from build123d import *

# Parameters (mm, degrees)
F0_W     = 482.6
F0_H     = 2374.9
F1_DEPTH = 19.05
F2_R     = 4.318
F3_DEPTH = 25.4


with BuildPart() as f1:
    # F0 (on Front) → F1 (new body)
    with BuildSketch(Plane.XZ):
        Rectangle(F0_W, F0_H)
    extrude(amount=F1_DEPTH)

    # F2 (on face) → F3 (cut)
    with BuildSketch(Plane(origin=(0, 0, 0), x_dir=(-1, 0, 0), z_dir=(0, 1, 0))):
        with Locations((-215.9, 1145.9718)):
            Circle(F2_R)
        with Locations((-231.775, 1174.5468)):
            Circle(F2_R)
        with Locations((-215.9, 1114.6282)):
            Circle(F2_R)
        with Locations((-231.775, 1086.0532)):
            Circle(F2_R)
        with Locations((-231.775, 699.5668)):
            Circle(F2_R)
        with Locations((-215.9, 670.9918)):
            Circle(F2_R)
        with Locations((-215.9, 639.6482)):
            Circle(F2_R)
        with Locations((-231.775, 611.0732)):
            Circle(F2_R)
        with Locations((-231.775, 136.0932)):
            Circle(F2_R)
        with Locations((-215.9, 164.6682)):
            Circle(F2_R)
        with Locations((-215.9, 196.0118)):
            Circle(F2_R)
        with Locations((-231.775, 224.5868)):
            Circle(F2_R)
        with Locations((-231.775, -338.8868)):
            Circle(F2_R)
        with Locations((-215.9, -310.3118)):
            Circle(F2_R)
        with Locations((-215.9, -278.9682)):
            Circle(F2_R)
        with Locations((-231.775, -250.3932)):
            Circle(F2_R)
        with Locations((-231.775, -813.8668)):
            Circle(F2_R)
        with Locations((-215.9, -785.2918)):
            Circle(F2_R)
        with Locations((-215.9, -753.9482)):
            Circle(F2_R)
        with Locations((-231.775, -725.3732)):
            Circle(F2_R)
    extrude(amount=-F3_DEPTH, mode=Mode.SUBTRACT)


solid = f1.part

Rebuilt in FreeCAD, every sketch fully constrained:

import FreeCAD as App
import Part
import Sketcher

V = App.Vector
Q = App.Units.Quantity


def add_polygon(sketch, points):
    """Adds a closed chain of lines whose ends are joined by coincident constraints."""
    first, n = sketch.GeometryCount, len(points)
    for a, b in zip(points, points[1:] + points[:1]):
        sketch.addGeometry(Part.LineSegment(App.Vector(*a, 0), App.Vector(*b, 0)), False)
    for i in range(n):
        sketch.addConstraint(Sketcher.Constraint("Coincident", first + i, 2, first + (i + 1) % n, 1))

doc = App.newDocument("Part")
body = doc.addObject("PartDesign::Body", "Body")

sketch1 = body.newObject("Sketcher::SketchObject", "Sketch")
sketch1.AttachmentSupport = (doc.getObject("XZ_Plane"), [""])
sketch1.MapMode = "FlatFace"
add_polygon(sketch1, [(-241.3, 1187.45), (-241.3, -1187.45), (241.3, -1187.45), (241.3, 1187.45)])
sketch1.addConstraint(Sketcher.Constraint("Vertical", 0))
sketch1.addConstraint(Sketcher.Constraint("Horizontal", 1))
sketch1.addConstraint(Sketcher.Constraint("Vertical", 2))
sketch1.addConstraint(Sketcher.Constraint("Horizontal", 3))
sketch1.addConstraint(Sketcher.Constraint("Symmetric", 0, 2, 2, 2, -1, 1))
sketch1.addConstraint(Sketcher.Constraint("DistanceX", 1, 1, 1, 2, Q("19 in")))
sketch1.addConstraint(Sketcher.Constraint("DistanceY", 0, 2, 0, 1, Q("93.5 in")))
pad1 = body.newObject("PartDesign::Pad", "Pad")
pad1.Profile = sketch1
pad1.Length = Q("0.75 in")

sketch2 = body.newObject("Sketcher::SketchObject", "Sketch001")
sketch2.AttachmentSupport = (doc.getObject("XZ_Plane"), [""])
sketch2.MapMode = "FlatFace"
sketch2.addGeometry(Part.Circle(V(215.9, 1145.9718, 0), V(0, 0, 1), 4.318), False)
sketch2.addGeometry(Part.Circle(V(231.775, 1174.5468, 0), V(0, 0, 1), 4.318), False)
sketch2.addGeometry(Part.Circle(V(215.9, 1114.6282, 0), V(0, 0, 1), 4.318), False)
sketch2.addGeometry(Part.Circle(V(231.775, 1086.0532, 0), V(0, 0, 1), 4.318), False)
sketch2.addGeometry(Part.Circle(V(231.775, 699.5668, 0), V(0, 0, 1), 4.318), False)
sketch2.addGeometry(Part.Circle(V(215.9, 670.9918, 0), V(0, 0, 1), 4.318), False)
sketch2.addGeometry(Part.Circle(V(215.9, 639.6482, 0), V(0, 0, 1), 4.318), False)
sketch2.addGeometry(Part.Circle(V(231.775, 611.0732, 0), V(0, 0, 1), 4.318), False)
sketch2.addGeometry(Part.Circle(V(231.775, 136.0932, 0), V(0, 0, 1), 4.318), False)
sketch2.addGeometry(Part.Circle(V(215.9, 164.6682, 0), V(0, 0, 1), 4.318), False)
sketch2.addGeometry(Part.Circle(V(215.9, 196.0118, 0), V(0, 0, 1), 4.318), False)
sketch2.addGeometry(Part.Circle(V(231.775, 224.5868, 0), V(0, 0, 1), 4.318), False)
sketch2.addGeometry(Part.Circle(V(231.775, -338.8868, 0), V(0, 0, 1), 4.318), False)
sketch2.addGeometry(Part.Circle(V(215.9, -310.3118, 0), V(0, 0, 1), 4.318), False)
sketch2.addGeometry(Part.Circle(V(215.9, -278.9682, 0), V(0, 0, 1), 4.318), False)
sketch2.addGeometry(Part.Circle(V(231.775, -250.3932, 0), V(0, 0, 1), 4.318), False)
sketch2.addGeometry(Part.Circle(V(231.775, -813.8668, 0), V(0, 0, 1), 4.318), False)
sketch2.addGeometry(Part.Circle(V(215.9, -785.2918, 0), V(0, 0, 1), 4.318), False)
sketch2.addGeometry(Part.Circle(V(215.9, -753.9482, 0), V(0, 0, 1), 4.318), False)
sketch2.addGeometry(Part.Circle(V(231.775, -725.3732, 0), V(0, 0, 1), 4.318), False)
sketch2.addConstraint(Sketcher.Constraint("Equal", 0, 1))
sketch2.addConstraint(Sketcher.Constraint("Equal", 1, 2))
sketch2.addConstraint(Sketcher.Constraint("Equal", 2, 3))
sketch2.addConstraint(Sketcher.Constraint("Equal", 3, 4))
sketch2.addConstraint(Sketcher.Constraint("Equal", 4, 5))
sketch2.addConstraint(Sketcher.Constraint("Equal", 5, 6))
sketch2.addConstraint(Sketcher.Constraint("Equal", 6, 7))
sketch2.addConstraint(Sketcher.Constraint("Equal", 7, 8))
sketch2.addConstraint(Sketcher.Constraint("Equal", 8, 9))
sketch2.addConstraint(Sketcher.Constraint("Equal", 9, 10))
sketch2.addConstraint(Sketcher.Constraint("Equal", 10, 11))
sketch2.addConstraint(Sketcher.Constraint("Equal", 11, 12))
sketch2.addConstraint(Sketcher.Constraint("Equal", 12, 13))
sketch2.addConstraint(Sketcher.Constraint("Equal", 13, 14))
sketch2.addConstraint(Sketcher.Constraint("Equal", 14, 15))
sketch2.addConstraint(Sketcher.Constraint("Equal", 15, 16))
sketch2.addConstraint(Sketcher.Constraint("Equal", 16, 17))
sketch2.addConstraint(Sketcher.Constraint("Equal", 17, 18))
sketch2.addConstraint(Sketcher.Constraint("Equal", 18, 19))
sketch2.addConstraint(Sketcher.Constraint("Vertical", 0, 3, 2, 3))
sketch2.addConstraint(Sketcher.Constraint("Vertical", 1, 3, 3, 3))
sketch2.addConstraint(Sketcher.Constraint("Vertical", 3, 3, 4, 3))
sketch2.addConstraint(Sketcher.Constraint("Vertical", 2, 3, 5, 3))
sketch2.addConstraint(Sketcher.Constraint("Vertical", 5, 3, 6, 3))
sketch2.addConstraint(Sketcher.Constraint("Vertical", 4, 3, 7, 3))
sketch2.addConstraint(Sketcher.Constraint("Vertical", 7, 3, 8, 3))
sketch2.addConstraint(Sketcher.Constraint("Vertical", 6, 3, 9, 3))
sketch2.addConstraint(Sketcher.Constraint("Vertical", 9, 3, 10, 3))
sketch2.addConstraint(Sketcher.Constraint("Vertical", 8, 3, 11, 3))
sketch2.addConstraint(Sketcher.Constraint("Vertical", 11, 3, 12, 3))
sketch2.addConstraint(Sketcher.Constraint("Vertical", 10, 3, 13, 3))
sketch2.addConstraint(Sketcher.Constraint("Vertical", 13, 3, 14, 3))
sketch2.addConstraint(Sketcher.Constraint("Vertical", 12, 3, 15, 3))
sketch2.addConstraint(Sketcher.Constraint("Vertical", 15, 3, 16, 3))
sketch2.addConstraint(Sketcher.Constraint("Vertical", 14, 3, 17, 3))
sketch2.addConstraint(Sketcher.Constraint("Vertical", 17, 3, 18, 3))
sketch2.addConstraint(Sketcher.Constraint("Vertical", 16, 3, 19, 3))
sketch2.addConstraint(Sketcher.Constraint("Diameter", 0, Q("0.34 in")))
sketch2.addConstraint(Sketcher.Constraint("DistanceX", -1, 1, 0, 3, Q("8.5 in")))
sketch2.addConstraint(Sketcher.Constraint("DistanceY", 4, 3, 1, 3, Q("18.7 in")))
sketch2.addConstraint(Sketcher.Constraint("DistanceY", 5, 3, 0, 3, Q("18.7 in")))
sketch2.addConstraint(Sketcher.Constraint("DistanceY", 6, 3, 2, 3, Q("18.7 in")))
sketch2.addConstraint(Sketcher.Constraint("DistanceY", 7, 3, 3, 3, Q("18.7 in")))
sketch2.addConstraint(Sketcher.Constraint("DistanceY", 8, 3, 7, 3, Q("18.7 in")))
sketch2.addConstraint(Sketcher.Constraint("DistanceY", 9, 3, 6, 3, Q("18.7 in")))
sketch2.addConstraint(Sketcher.Constraint("DistanceY", 10, 3, 5, 3, Q("18.7 in")))
sketch2.addConstraint(Sketcher.Constraint("DistanceY", 12, 3, 8, 3, Q("18.7 in")))
sketch2.addConstraint(Sketcher.Constraint("DistanceY", 13, 3, 9, 3, Q("18.7 in")))
sketch2.addConstraint(Sketcher.Constraint("DistanceY", 14, 3, 10, 3, Q("18.7 in")))
sketch2.addConstraint(Sketcher.Constraint("DistanceY", 16, 3, 12, 3, Q("18.7 in")))
sketch2.addConstraint(Sketcher.Constraint("DistanceY", 17, 3, 13, 3, Q("18.7 in")))
sketch2.addConstraint(Sketcher.Constraint("DistanceY", 18, 3, 14, 3, Q("18.7 in")))
sketch2.addConstraint(Sketcher.Constraint("DistanceY", -1, 1, 0, 3, Q("45.117 in")))
sketch2.addConstraint(Sketcher.Constraint("DistanceX", -1, 1, 1, 3, Q("9.125 in")))
sketch2.addConstraint(Sketcher.Constraint("DistanceY", -1, 1, 1, 3, Q("46.242 in")))
sketch2.addConstraint(Sketcher.Constraint("DistanceY", -1, 1, 2, 3, Q("43.883 in")))
sketch2.addConstraint(Sketcher.Constraint("DistanceY", -1, 1, 3, 3, Q("42.758 in")))
sketch2.addConstraint(Sketcher.Constraint("DistanceY", -1, 1, 11, 3, Q("8.842 in")))
sketch2.addConstraint(Sketcher.Constraint("DistanceY", 15, 3, -1, 1, Q("9.858 in")))
sketch2.addConstraint(Sketcher.Constraint("DistanceY", 19, 3, -1, 1, Q("28.558 in")))
pocket1 = body.newObject("PartDesign::Pocket", "Pocket")
pocket1.Profile = sketch2
pocket1.Length = Q("1 in")
pocket1.Reversed = True

doc.recompute()
